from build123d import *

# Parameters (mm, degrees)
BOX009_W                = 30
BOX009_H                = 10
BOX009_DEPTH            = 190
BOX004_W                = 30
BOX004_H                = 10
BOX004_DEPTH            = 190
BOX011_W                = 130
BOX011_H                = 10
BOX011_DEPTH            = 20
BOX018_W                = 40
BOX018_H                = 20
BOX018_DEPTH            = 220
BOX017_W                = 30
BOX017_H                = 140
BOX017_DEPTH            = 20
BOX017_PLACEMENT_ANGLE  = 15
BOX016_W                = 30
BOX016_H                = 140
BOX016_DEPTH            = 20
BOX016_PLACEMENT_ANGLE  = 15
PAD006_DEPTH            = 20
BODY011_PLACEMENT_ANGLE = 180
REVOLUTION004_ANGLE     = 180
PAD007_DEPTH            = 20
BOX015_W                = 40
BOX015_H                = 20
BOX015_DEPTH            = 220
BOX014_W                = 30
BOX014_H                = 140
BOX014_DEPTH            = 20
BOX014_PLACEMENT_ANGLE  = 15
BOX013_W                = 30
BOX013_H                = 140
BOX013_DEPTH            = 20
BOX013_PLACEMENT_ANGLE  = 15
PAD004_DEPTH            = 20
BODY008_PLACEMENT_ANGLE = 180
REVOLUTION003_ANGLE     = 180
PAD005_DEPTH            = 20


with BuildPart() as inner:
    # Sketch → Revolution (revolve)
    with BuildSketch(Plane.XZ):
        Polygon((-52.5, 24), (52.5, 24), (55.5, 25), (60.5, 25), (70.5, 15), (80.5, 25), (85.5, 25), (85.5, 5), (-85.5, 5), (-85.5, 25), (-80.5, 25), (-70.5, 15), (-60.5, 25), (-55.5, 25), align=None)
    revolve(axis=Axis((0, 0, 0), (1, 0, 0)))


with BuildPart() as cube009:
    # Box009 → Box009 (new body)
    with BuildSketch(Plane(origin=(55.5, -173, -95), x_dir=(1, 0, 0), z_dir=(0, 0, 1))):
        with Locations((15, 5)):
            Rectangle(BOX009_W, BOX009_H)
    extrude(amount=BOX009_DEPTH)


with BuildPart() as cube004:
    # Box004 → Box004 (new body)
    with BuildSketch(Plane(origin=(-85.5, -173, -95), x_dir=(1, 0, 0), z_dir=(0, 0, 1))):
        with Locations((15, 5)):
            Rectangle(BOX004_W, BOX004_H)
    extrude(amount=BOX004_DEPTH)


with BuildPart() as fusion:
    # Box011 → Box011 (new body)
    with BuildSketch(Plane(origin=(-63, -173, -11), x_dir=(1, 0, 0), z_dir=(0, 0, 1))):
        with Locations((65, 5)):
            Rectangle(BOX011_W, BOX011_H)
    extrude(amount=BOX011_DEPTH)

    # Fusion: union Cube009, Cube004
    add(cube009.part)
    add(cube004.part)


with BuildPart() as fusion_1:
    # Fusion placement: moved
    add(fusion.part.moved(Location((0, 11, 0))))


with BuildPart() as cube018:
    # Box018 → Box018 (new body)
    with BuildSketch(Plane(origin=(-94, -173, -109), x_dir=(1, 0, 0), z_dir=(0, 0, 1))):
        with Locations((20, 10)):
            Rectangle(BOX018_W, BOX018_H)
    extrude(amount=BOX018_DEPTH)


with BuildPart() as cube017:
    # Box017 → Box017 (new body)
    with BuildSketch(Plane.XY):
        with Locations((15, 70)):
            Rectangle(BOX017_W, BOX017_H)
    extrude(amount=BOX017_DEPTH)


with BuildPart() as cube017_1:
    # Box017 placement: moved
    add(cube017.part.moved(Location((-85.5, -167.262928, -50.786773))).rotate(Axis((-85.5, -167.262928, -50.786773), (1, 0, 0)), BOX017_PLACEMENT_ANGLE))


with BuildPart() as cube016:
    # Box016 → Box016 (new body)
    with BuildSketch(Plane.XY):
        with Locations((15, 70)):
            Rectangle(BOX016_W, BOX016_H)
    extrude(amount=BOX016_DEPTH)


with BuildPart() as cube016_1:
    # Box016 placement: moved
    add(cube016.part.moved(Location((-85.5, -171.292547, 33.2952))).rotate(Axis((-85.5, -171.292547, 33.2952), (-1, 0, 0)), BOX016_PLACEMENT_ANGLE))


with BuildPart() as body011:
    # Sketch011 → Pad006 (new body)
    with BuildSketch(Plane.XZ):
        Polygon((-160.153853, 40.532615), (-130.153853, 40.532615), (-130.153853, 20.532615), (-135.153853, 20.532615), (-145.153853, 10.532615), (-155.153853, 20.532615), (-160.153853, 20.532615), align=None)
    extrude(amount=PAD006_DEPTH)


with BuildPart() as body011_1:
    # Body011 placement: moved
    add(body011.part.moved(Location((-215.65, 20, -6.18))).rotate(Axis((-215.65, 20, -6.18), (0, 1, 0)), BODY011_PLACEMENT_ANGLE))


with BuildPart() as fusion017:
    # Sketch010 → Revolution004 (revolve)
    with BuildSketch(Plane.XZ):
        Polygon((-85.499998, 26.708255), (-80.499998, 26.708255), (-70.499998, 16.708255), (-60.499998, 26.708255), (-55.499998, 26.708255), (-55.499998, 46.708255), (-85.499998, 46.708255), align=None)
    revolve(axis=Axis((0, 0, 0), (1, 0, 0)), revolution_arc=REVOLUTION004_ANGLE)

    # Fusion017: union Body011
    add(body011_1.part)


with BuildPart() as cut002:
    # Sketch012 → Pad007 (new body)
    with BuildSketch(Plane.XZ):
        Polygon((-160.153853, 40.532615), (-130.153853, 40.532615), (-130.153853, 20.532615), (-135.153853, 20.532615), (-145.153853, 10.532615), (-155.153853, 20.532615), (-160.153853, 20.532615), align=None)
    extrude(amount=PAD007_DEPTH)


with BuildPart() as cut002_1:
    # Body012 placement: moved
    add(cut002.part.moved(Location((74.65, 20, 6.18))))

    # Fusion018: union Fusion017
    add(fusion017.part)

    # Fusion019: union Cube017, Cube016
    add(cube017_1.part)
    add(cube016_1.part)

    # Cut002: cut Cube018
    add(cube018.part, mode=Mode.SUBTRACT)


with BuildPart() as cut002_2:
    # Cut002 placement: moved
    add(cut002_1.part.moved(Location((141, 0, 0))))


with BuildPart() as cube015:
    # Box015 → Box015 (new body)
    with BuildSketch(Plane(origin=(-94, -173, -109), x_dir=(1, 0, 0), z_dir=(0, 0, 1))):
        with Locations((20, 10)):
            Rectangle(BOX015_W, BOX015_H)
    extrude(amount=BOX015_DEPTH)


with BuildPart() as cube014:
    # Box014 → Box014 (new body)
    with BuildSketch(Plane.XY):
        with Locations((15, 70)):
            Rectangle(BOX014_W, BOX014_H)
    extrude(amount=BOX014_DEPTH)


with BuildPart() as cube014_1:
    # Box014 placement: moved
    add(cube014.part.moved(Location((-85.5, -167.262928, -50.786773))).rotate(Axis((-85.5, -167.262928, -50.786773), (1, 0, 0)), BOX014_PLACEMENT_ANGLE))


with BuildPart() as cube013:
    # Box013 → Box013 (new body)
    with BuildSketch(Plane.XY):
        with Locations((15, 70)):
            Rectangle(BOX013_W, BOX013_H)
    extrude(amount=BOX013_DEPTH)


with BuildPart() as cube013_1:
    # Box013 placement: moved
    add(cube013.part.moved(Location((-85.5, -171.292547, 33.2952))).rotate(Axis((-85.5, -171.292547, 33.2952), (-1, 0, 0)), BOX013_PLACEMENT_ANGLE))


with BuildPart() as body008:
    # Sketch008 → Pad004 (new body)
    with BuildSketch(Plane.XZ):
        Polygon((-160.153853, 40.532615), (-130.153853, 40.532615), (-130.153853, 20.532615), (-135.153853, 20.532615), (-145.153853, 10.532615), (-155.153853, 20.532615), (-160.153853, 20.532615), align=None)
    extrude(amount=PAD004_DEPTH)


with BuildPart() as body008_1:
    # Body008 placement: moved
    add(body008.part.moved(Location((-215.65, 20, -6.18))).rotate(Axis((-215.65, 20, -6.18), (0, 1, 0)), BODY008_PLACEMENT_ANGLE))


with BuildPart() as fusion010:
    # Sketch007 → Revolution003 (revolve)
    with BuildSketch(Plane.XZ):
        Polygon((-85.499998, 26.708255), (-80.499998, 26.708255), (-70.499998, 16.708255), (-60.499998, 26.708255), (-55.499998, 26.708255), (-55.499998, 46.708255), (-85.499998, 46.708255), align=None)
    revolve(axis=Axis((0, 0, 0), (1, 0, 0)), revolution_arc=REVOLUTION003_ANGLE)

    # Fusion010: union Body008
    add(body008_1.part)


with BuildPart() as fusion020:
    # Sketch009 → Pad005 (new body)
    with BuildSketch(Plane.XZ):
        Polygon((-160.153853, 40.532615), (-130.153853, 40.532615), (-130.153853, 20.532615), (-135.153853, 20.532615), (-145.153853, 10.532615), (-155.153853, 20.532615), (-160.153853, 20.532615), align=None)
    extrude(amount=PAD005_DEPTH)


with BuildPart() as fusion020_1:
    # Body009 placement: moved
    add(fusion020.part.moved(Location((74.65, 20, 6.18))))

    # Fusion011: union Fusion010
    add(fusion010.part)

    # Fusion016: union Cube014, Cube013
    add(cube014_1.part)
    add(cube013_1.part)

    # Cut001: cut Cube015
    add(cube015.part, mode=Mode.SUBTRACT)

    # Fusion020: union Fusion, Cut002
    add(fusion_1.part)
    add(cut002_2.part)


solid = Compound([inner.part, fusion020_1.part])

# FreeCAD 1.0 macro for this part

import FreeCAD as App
import Part
import Sketcher
from FreeCAD import Vector


def add_polygon(sketch, points):
    """Adds a closed chain of lines whose ends are joined by coincident constraints."""
    first, n = sketch.GeometryCount, len(points)
    for a, b in zip(points, points[1:] + points[:1]):
        sketch.addGeometry(Part.LineSegment(App.Vector(*a, 0), App.Vector(*b, 0)), False)
    for i in range(n):
        sketch.addConstraint(Sketcher.Constraint("Coincident", first + i, 2, first + (i + 1) % n, 1))

doc = App.newDocument("Part")
body = doc.addObject("PartDesign::Body", "Body")

sketch1 = body.newObject("Sketcher::SketchObject", "Sketch")
sketch1.AttachmentSupport = (doc.getObject("XZ_Plane"), [""])
sketch1.MapMode = "FlatFace"
add_polygon(sketch1, [(52.5, 24), (-52.5, 24), (-55.5, 25), (-60.5, 25), (-70.5, 15), (-80.5, 25), (-85.5, 25), (-85.5, 5), (85.5, 5), (85.5, 25), (80.5, 25), (70.5, 15), (60.5, 25), (55.5, 25)])
sketch1.addConstraint(Sketcher.Constraint("Horizontal", 0))
sketch1.addConstraint(Sketcher.Constraint("Horizontal", 2))
sketch1.addConstraint(Sketcher.Constraint("Horizontal", 5))
sketch1.addConstraint(Sketcher.Constraint("Vertical", 6))
sketch1.addConstraint(Sketcher.Constraint("Horizontal", 7))
sketch1.addConstraint(Sketcher.Constraint("Vertical", 8))
sketch1.addConstraint(Sketcher.Constraint("Horizontal", 9))
sketch1.addConstraint(Sketcher.Constraint("Horizontal", 12))
sketch1.addConstraint(Sketcher.Constraint("Symmetric", 5, 2, 8, 2, -2))
sketch1.addConstraint(Sketcher.Constraint("Symmetric", 3, 2, 10, 2, -2))
sketch1.addConstraint(Sketcher.Constraint("Symmetric", 2, 2, 11, 2, -2))
sketch1.addConstraint(Sketcher.Constraint("Perpendicular", 3, 4))
sketch1.addConstraint(Sketcher.Constraint("Perpendicular", 4, 10))
sketch1.addConstraint(Sketcher.Constraint("Perpendicular", 10, 11))
sketch1.addConstraint(Sketcher.Constraint("Horizontal", 2, 2, 4, 2))
sketch1.addConstraint(Sketcher.Constraint("Equal", 2, 5))
sketch1.addConstraint(Sketcher.Constraint("Equal", 9, 12))
sketch1.addConstraint(Sketcher.Constraint("Equal", 1, 13))
sketch1.addConstraint(Sketcher.Constraint("DistanceX", 0, 2, 0, 1, 105.0))
sketch1.addConstraint(Sketcher.Constraint("DistanceX", 2, 2, 2, 1, 5.0))
sketch1.addConstraint(Sketcher.Constraint("DistanceX", 7, 1, 7, 2, 171.0))
sketch1.addConstraint(Sketcher.Constraint("DistanceY", 6, 2, 6, 1, 20.0))
sketch1.addConstraint(Sketcher.Constraint("DistanceY", -1, 1, 0, 2, 24.0))
sketch1.addConstraint(Sketcher.Constraint("DistanceY", -1, 1, 1, 2, 25.0))
sketch1.addConstraint(Sketcher.Constraint("DistanceY", -1, 1, 3, 2, 15.0))
revolution = body.newObject("PartDesign::Revolution", "Revolution")
revolution.Profile = sketch1
revolution.ReferenceAxis = (sketch1, ["H_Axis"])
revolution.Angle = 360
body2 = doc.addObject("PartDesign::Body", "Body001")

sketch2 = body2.newObject("Sketcher::SketchObject", "Sketch001")
sketch2.AttachmentSupport = (doc.getObject("XY_Plane001"), [""])
sketch2.MapMode = "FlatFace"
sketch2.AttachmentOffset = App.Placement(Vector(0, 0, -95), App.Rotation())
add_polygon(sketch2, [(56, -163), (56, -173), (86, -173), (86, -163)])
sketch2.addConstraint(Sketcher.Constraint("Vertical", 0))
sketch2.addConstraint(Sketcher.Constraint("Horizontal", 1))
sketch2.addConstraint(Sketcher.Constraint("Vertical", 2))
sketch2.addConstraint(Sketcher.Constraint("Horizontal", 3))
sketch2.addConstraint(Sketcher.Constraint("DistanceX", 1, 1, 1, 2, 30.0))
sketch2.addConstraint(Sketcher.Constraint("DistanceY", 0, 2, 0, 1, 10.0))
sketch2.addConstraint(Sketcher.Constraint("DistanceY", 0, 2, -1, 1, 173.0))
sketch2.addConstraint(Sketcher.Constraint("DistanceX", -1, 1, 0, 2, 55.5))
pad1 = body2.newObject("PartDesign::Pad", "Pad")
pad1.Profile = sketch2
pad1.Length = 190
body3 = doc.addObject("PartDesign::Body", "Body002")

sketch3 = body3.newObject("Sketcher::SketchObject", "Sketch002")
sketch3.AttachmentSupport = (doc.getObject("XY_Plane002"), [""])
sketch3.MapMode = "FlatFace"
sketch3.AttachmentOffset = App.Placement(Vector(0, 0, -95), App.Rotation())
add_polygon(sketch3, [(-86, -163), (-86, -173), (-56, -173), (-56, -163)])
sketch3.addConstraint(Sketcher.Constraint("Vertical", 0))
sketch3.addConstraint(Sketcher.Constraint("Horizontal", 1))
sketch3.addConstraint(Sketcher.Constraint("Vertical", 2))
sketch3.addConstraint(Sketcher.Constraint("Horizontal", 3))
sketch3.addConstraint(Sketcher.Constraint("DistanceX", 1, 1, 1, 2, 30.0))
sketch3.addConstraint(Sketcher.Constraint("DistanceY", 0, 2, 0, 1, 10.0))
sketch3.addConstraint(Sketcher.Constraint("DistanceY", 0, 2, -1, 1, 173.0))
sketch3.addConstraint(Sketcher.Constraint("DistanceX", 0, 2, -1, 1, 85.5))
pad2 = body3.newObject("PartDesign::Pad", "Pad001")
pad2.Profile = sketch3
pad2.Length = 190
body4 = doc.addObject("PartDesign::Body", "Body003")

sketch4 = body4.newObject("Sketcher::SketchObject", "Sketch003")
sketch4.AttachmentSupport = (doc.getObject("XY_Plane003"), [""])
sketch4.MapMode = "FlatFace"
sketch4.AttachmentOffset = App.Placement(Vector(0, 0, -11), App.Rotation())
add_polygon(sketch4, [(-63, -163), (-63, -173), (67, -173), (67, -163)])
sketch4.addConstraint(Sketcher.Constraint("Vertical", 0))
sketch4.addConstraint(Sketcher.Constraint("Horizontal", 1))
sketch4.addConstraint(Sketcher.Constraint("Vertical", 2))
sketch4.addConstraint(Sketcher.Constraint("Horizontal", 3))
sketch4.addConstraint(Sketcher.Constraint("DistanceX", 1, 1, 1, 2, 130.0))
sketch4.addConstraint(Sketcher.Constraint("DistanceY", 0, 2, 0, 1, 10.0))
sketch4.addConstraint(Sketcher.Constraint("DistanceX", 0, 2, -1, 1, 63.0))
sketch4.addConstraint(Sketcher.Constraint("DistanceY", 0, 2, -1, 1, 173.0))
pad3 = body4.newObject("PartDesign::Pad", "Pad002")
pad3.Profile = sketch4
pad3.Length = 20
doc.recompute()

boolean = body4.newObject("PartDesign::Boolean", "Boolean")
boolean.Type = "Fuse"
boolean.addObjects([body2])
doc.recompute()

boolean2 = body4.newObject("PartDesign::Boolean", "Boolean001")
boolean2.Type = "Fuse"
boolean2.addObjects([body3])
body5 = doc.addObject("PartDesign::Body", "Body004")
doc.recompute()

body4.Placement = App.Placement(Vector(0, 11, 0), App.Rotation(Vector(0, 0, 1), 0))
boolean3 = body5.newObject("PartDesign::Boolean", "Boolean002")
boolean3.Type = "Fuse"
boolean3.addObjects([body4])
body6 = doc.addObject("PartDesign::Body", "Body005")

sketch5 = body6.newObject("Sketcher::SketchObject", "Sketch004")
sketch5.AttachmentSupport = (doc.getObject("XY_Plane005"), [""])
sketch5.MapMode = "FlatFace"
sketch5.AttachmentOffset = App.Placement(Vector(0, 0, -109), App.Rotation())
add_polygon(sketch5, [(-94, -153), (-94, -173), (-54, -173), (-54, -153)])
sketch5.addConstraint(Sketcher.Constraint("Vertical", 0))
sketch5.addConstraint(Sketcher.Constraint("Horizontal", 1))
sketch5.addConstraint(Sketcher.Constraint("Vertical", 2))
sketch5.addConstraint(Sketcher.Constraint("Horizontal", 3))
sketch5.addConstraint(Sketcher.Constraint("DistanceX", 1, 1, 1, 2, 40.0))
sketch5.addConstraint(Sketcher.Constraint("DistanceY", 0, 2, 0, 1, 20.0))
sketch5.addConstraint(Sketcher.Constraint("DistanceX", 0, 2, -1, 1, 94.0))
sketch5.addConstraint(Sketcher.Constraint("DistanceY", 0, 2, -1, 1, 173.0))
pad4 = body6.newObject("PartDesign::Pad", "Pad003")
pad4.Profile = sketch5
pad4.Length = 220
body7 = doc.addObject("PartDesign::Body", "Body006")

sketch6 = body7.newObject("Sketcher::SketchObject", "Sketch005")
sketch6.AttachmentSupport = (doc.getObject("XY_Plane006"), [""])
sketch6.MapMode = "FlatFace"
add_polygon(sketch6, [(0, 140), (0, 0), (30, 0), (30, 140)])
sketch6.addConstraint(Sketcher.Constraint("Vertical", 0))
sketch6.addConstraint(Sketcher.Constraint("Horizontal", 1))
sketch6.addConstraint(Sketcher.Constraint("Vertical", 2))
sketch6.addConstraint(Sketcher.Constraint("Horizontal", 3))
sketch6.addConstraint(Sketcher.Constraint("Coincident", 0, 2, -1, 1))
sketch6.addConstraint(Sketcher.Constraint("DistanceX", 1, 1, 1, 2, 30.0))
sketch6.addConstraint(Sketcher.Constraint("DistanceY", 0, 2, 0, 1, 140.0))
pad5 = body7.newObject("PartDesign::Pad", "Pad004")
pad5.Profile = sketch6
pad5.Length = 20
body8 = doc.addObject("PartDesign::Body", "Body007")
doc.recompute()

body7.Placement = App.Placement(Vector(-85.5, -167.262928, -50.786773), App.Rotation(Vector(1, 0, 0), 15))
boolean4 = body8.newObject("PartDesign::Boolean", "Boolean003")
boolean4.Type = "Fuse"
boolean4.addObjects([body7])
body9 = doc.addObject("PartDesign::Body", "Body008")

sketch7 = body9.newObject("Sketcher::SketchObject", "Sketch006")
sketch7.AttachmentSupport = (doc.getObject("XY_Plane008"), [""])
sketch7.MapMode = "FlatFace"
add_polygon(sketch7, [(0, 140), (0, 0), (30, 0), (30, 140)])
sketch7.addConstraint(Sketcher.Constraint("Vertical", 0))
sketch7.addConstraint(Sketcher.Constraint("Horizontal", 1))
sketch7.addConstraint(Sketcher.Constraint("Vertical", 2))
sketch7.addConstraint(Sketcher.Constraint("Horizontal", 3))
sketch7.addConstraint(Sketcher.Constraint("Coincident", 0, 2, -1, 1))
sketch7.addConstraint(Sketcher.Constraint("DistanceX", 1, 1, 1, 2, 30.0))
sketch7.addConstraint(Sketcher.Constraint("DistanceY", 0, 2, 0, 1, 140.0))
pad6 = body9.newObject("PartDesign::Pad", "Pad005")
pad6.Profile = sketch7
pad6.Length = 20
body10 = doc.addObject("PartDesign::Body", "Body009")
doc.recompute()

body9.Placement = App.Placement(Vector(-85.5, -171.292547, 33.2952), App.Rotation(Vector(-1, 0, 0), 15))
boolean5 = body10.newObject("PartDesign::Boolean", "Boolean004")
boolean5.Type = "Fuse"
boolean5.addObjects([body9])
body11 = doc.addObject("PartDesign::Body", "Body010")

sketch8 = body11.newObject("Sketcher::SketchObject", "Sketch007")
sketch8.AttachmentSupport = (doc.getObject("XZ_Plane010"), [""])
sketch8.MapMode = "FlatFace"
add_polygon(sketch8, [(-130, 41), (-160, 41), (-160, 21), (-155, 21), (-145, 11), (-135, 21), (-130, 21)])
sketch8.addConstraint(Sketcher.Constraint("Horizontal", 0))
sketch8.addConstraint(Sketcher.Constraint("Vertical", 1))
sketch8.addConstraint(Sketcher.Constraint("Horizontal", 2))
sketch8.addConstraint(Sketcher.Constraint("Horizontal", 5))
sketch8.addConstraint(Sketcher.Constraint("Vertical", 6))
sketch8.addConstraint(Sketcher.Constraint("Perpendicular", 3, 4))
sketch8.addConstraint(Sketcher.Constraint("Horizontal", 2, 2, 4, 2))
sketch8.addConstraint(Sketcher.Constraint("Equal", 2, 5))
sketch8.addConstraint(Sketcher.Constraint("Equal", 3, 4))
sketch8.addConstraint(Sketcher.Constraint("DistanceX", 0, 2, 0, 1, 30.0))
sketch8.addConstraint(Sketcher.Constraint("DistanceX", 2, 1, 2, 2, 5.0))
sketch8.addConstraint(Sketcher.Constraint("DistanceY", 1, 2, 1, 1, 20.0))
sketch8.addConstraint(Sketcher.Constraint("DistanceX", 0, 2, -1, 1, 160.153853))
sketch8.addConstraint(Sketcher.Constraint("DistanceY", -1, 1, 0, 2, 40.532615))
pad7 = body11.newObject("PartDesign::Pad", "Pad006")
pad7.Profile = sketch8
pad7.Length = 20
body12 = doc.addObject("PartDesign::Body", "Body011")
doc.recompute()

body11.Placement = App.Placement(Vector(-215.65, 20, -6.18), App.Rotation(Vector(0, 1, 0), 180))
boolean6 = body12.newObject("PartDesign::Boolean", "Boolean005")
boolean6.Type = "Fuse"
boolean6.addObjects([body11])
body13 = doc.addObject("PartDesign::Body", "Body012")

sketch9 = body13.newObject("Sketcher::SketchObject", "Sketch008")
sketch9.AttachmentSupport = (doc.getObject("XZ_Plane012"), [""])
sketch9.MapMode = "FlatFace"
add_polygon(sketch9, [(-85, 27), (-80, 27), (-70, 17), (-60, 27), (-55, 27), (-55, 47), (-85, 47)])
sketch9.addConstraint(Sketcher.Constraint("Horizontal", 0))
sketch9.addConstraint(Sketcher.Constraint("Horizontal", 3))
sketch9.addConstraint(Sketcher.Constraint("Vertical", 4))
sketch9.addConstraint(Sketcher.Constraint("Horizontal", 5))
sketch9.addConstraint(Sketcher.Constraint("Vertical", 6))
sketch9.addConstraint(Sketcher.Constraint("Perpendicular", 1, 2))
sketch9.addConstraint(Sketcher.Constraint("Horizontal", 0, 2, 2, 2))
sketch9.addConstraint(Sketcher.Constraint("Equal", 0, 3))
sketch9.addConstraint(Sketcher.Constraint("Equal", 1, 2))
sketch9.addConstraint(Sketcher.Constraint("DistanceX", 0, 1, 0, 2, 5.0))
sketch9.addConstraint(Sketcher.Constraint("DistanceX", 5, 2, 5, 1, 30.0))
sketch9.addConstraint(Sketcher.Constraint("DistanceY", 4, 1, 4, 2, 20.0))
sketch9.addConstraint(Sketcher.Constraint("DistanceX", 0, 2, -1, 1, 80.499998))
sketch9.addConstraint(Sketcher.Constraint("DistanceY", -1, 1, 0, 2, 26.708255))
revolution2 = body13.newObject("PartDesign::Revolution", "Revolution001")
revolution2.Profile = sketch9
revolution2.ReferenceAxis = (sketch9, ["H_Axis"])
revolution2.Angle = 180
doc.recompute()

boolean7 = body13.newObject("PartDesign::Boolean", "Boolean006")
boolean7.Type = "Fuse"
boolean7.addObjects([body12])
body14 = doc.addObject("PartDesign::Body", "Body013")

sketch10 = body14.newObject("Sketcher::SketchObject", "Sketch009")
sketch10.AttachmentSupport = (doc.getObject("XZ_Plane013"), [""])
sketch10.MapMode = "FlatFace"
add_polygon(sketch10, [(-130, 41), (-160, 41), (-160, 21), (-155, 21), (-145, 11), (-135, 21), (-130, 21)])
sketch10.addConstraint(Sketcher.Constraint("Horizontal", 0))
sketch10.addConstraint(Sketcher.Constraint("Vertical", 1))
sketch10.addConstraint(Sketcher.Constraint("Horizontal", 2))
sketch10.addConstraint(Sketcher.Constraint("Horizontal", 5))
sketch10.addConstraint(Sketcher.Constraint("Vertical", 6))
sketch10.addConstraint(Sketcher.Constraint("Perpendicular", 3, 4))
sketch10.addConstraint(Sketcher.Constraint("Horizontal", 2, 2, 4, 2))
sketch10.addConstraint(Sketcher.Constraint("Equal", 2, 5))
sketch10.addConstraint(Sketcher.Constraint("Equal", 3, 4))
sketch10.addConstraint(Sketcher.Constraint("DistanceX", 0, 2, 0, 1, 30.0))
sketch10.addConstraint(Sketcher.Constraint("DistanceX", 2, 1, 2, 2, 5.0))
sketch10.addConstraint(Sketcher.Constraint("DistanceY", 1, 2, 1, 1, 20.0))
sketch10.addConstraint(Sketcher.Constraint("DistanceX", 0, 2, -1, 1, 160.153853))
sketch10.addConstraint(Sketcher.Constraint("DistanceY", -1, 1, 0, 2, 40.532615))
pad8 = body14.newObject("PartDesign::Pad", "Pad007")
pad8.Profile = sketch10
pad8.Length = 20
body15 = doc.addObject("PartDesign::Body", "Body014")
doc.recompute()

body14.Placement = App.Placement(Vector(74.65, 20, 6.18), App.Rotation(Vector(0, 0, 1), 0))
boolean8 = body15.newObject("PartDesign::Boolean", "Boolean007")
boolean8.Type = "Fuse"
boolean8.addObjects([body14])
doc.recompute()

boolean9 = body15.newObject("PartDesign::Boolean", "Boolean008")
boolean9.Type = "Fuse"
boolean9.addObjects([body13])
doc.recompute()

boolean10 = body15.newObject("PartDesign::Boolean", "Boolean009")
boolean10.Type = "Fuse"
boolean10.addObjects([body8])
doc.recompute()

boolean11 = body15.newObject("PartDesign::Boolean", "Boolean010")
boolean11.Type = "Fuse"
boolean11.addObjects([body10])
doc.recompute()

boolean12 = body15.newObject("PartDesign::Boolean", "Boolean011")
boolean12.Type = "Cut"
boolean12.addObjects([body6])
body16 = doc.addObject("PartDesign::Body", "Body015")
doc.recompute()

body15.Placement = App.Placement(Vector(141, 0, 0), App.Rotation(Vector(0, 0, 1), 0))
boolean13 = body16.newObject("PartDesign::Boolean", "Boolean012")
boolean13.Type = "Fuse"
boolean13.addObjects([body15])
body17 = doc.addObject("PartDesign::Body", "Body016")

sketch11 = body17.newObject("Sketcher::SketchObject", "Sketch010")
sketch11.AttachmentSupport = (doc.getObject("XY_Plane016"), [""])
sketch11.MapMode = "FlatFace"
sketch11.AttachmentOffset = App.Placement(Vector(0, 0, -109), App.Rotation())
add_polygon(sketch11, [(-94, -153), (-94, -173), (-54, -173), (-54, -153)])
sketch11.addConstraint(Sketcher.Constraint("Vertical", 0))
sketch11.addConstraint(Sketcher.Constraint("Horizontal", 1))
sketch11.addConstraint(Sketcher.Constraint("Vertical", 2))
sketch11.addConstraint(Sketcher.Constraint("Horizontal", 3))
sketch11.addConstraint(Sketcher.Constraint("DistanceX", 1, 1, 1, 2, 40.0))
sketch11.addConstraint(Sketcher.Constraint("DistanceY", 0, 2, 0, 1, 20.0))
sketch11.addConstraint(Sketcher.Constraint("DistanceX", 0, 2, -1, 1, 94.0))
sketch11.addConstraint(Sketcher.Constraint("DistanceY", 0, 2, -1, 1, 173.0))
pad9 = body17.newObject("PartDesign::Pad", "Pad008")
pad9.Profile = sketch11
pad9.Length = 220
body18 = doc.addObject("PartDesign::Body", "Body017")

sketch12 = body18.newObject("Sketcher::SketchObject", "Sketch011")
sketch12.AttachmentSupport = (doc.getObject("XY_Plane017"), [""])
sketch12.MapMode = "FlatFace"
add_polygon(sketch12, [(0, 140), (0, 0), (30, 0), (30, 140)])
sketch12.addConstraint(Sketcher.Constraint("Vertical", 0))
sketch12.addConstraint(Sketcher.Constraint("Horizontal", 1))
sketch12.addConstraint(Sketcher.Constraint("Vertical", 2))
sketch12.addConstraint(Sketcher.Constraint("Horizontal", 3))
sketch12.addConstraint(Sketcher.Constraint("Coincident", 0, 2, -1, 1))
sketch12.addConstraint(Sketcher.Constraint("DistanceX", 1, 1, 1, 2, 30.0))
sketch12.addConstraint(Sketcher.Constraint("DistanceY", 0, 2, 0, 1, 140.0))
pad10 = body18.newObject("PartDesign::Pad", "Pad009")
pad10.Profile = sketch12
pad10.Length = 20
body19 = doc.addObject("PartDesign::Body", "Body018")
doc.recompute()

body18.Placement = App.Placement(Vector(-85.5, -167.262928, -50.786773), App.Rotation(Vector(1, 0, 0), 15))
boolean14 = body19.newObject("PartDesign::Boolean", "Boolean013")
boolean14.Type = "Fuse"
boolean14.addObjects([body18])
body20 = doc.addObject("PartDesign::Body", "Body019")

sketch13 = body20.newObject("Sketcher::SketchObject", "Sketch012")
sketch13.AttachmentSupport = (doc.getObject("XY_Plane019"), [""])
sketch13.MapMode = "FlatFace"
add_polygon(sketch13, [(0, 140), (0, 0), (30, 0), (30, 140)])
sketch13.addConstraint(Sketcher.Constraint("Vertical", 0))
sketch13.addConstraint(Sketcher.Constraint("Horizontal", 1))
sketch13.addConstraint(Sketcher.Constraint("Vertical", 2))
sketch13.addConstraint(Sketcher.Constraint("Horizontal", 3))
sketch13.addConstraint(Sketcher.Constraint("Coincident", 0, 2, -1, 1))
sketch13.addConstraint(Sketcher.Constraint("DistanceX", 1, 1, 1, 2, 30.0))
sketch13.addConstraint(Sketcher.Constraint("DistanceY", 0, 2, 0, 1, 140.0))
pad11 = body20.newObject("PartDesign::Pad", "Pad010")
pad11.Profile = sketch13
pad11.Length = 20
body21 = doc.addObject("PartDesign::Body", "Body020")
doc.recompute()

body20.Placement = App.Placement(Vector(-85.5, -171.292547, 33.2952), App.Rotation(Vector(-1, 0, 0), 15))
boolean15 = body21.newObject("PartDesign::Boolean", "Boolean014")
boolean15.Type = "Fuse"
boolean15.addObjects([body20])
body22 = doc.addObject("PartDesign::Body", "Body021")

sketch14 = body22.newObject("Sketcher::SketchObject", "Sketch013")
sketch14.AttachmentSupport = (doc.getObject("XZ_Plane021"), [""])
sketch14.MapMode = "FlatFace"
add_polygon(sketch14, [(-130, 41), (-160, 41), (-160, 21), (-155, 21), (-145, 11), (-135, 21), (-130, 21)])
sketch14.addConstraint(Sketcher.Constraint("Horizontal", 0))
sketch14.addConstraint(Sketcher.Constraint("Vertical", 1))
sketch14.addConstraint(Sketcher.Constraint("Horizontal", 2))
sketch14.addConstraint(Sketcher.Constraint("Horizontal", 5))
sketch14.addConstraint(Sketcher.Constraint("Vertical", 6))
sketch14.addConstraint(Sketcher.Constraint("Perpendicular", 3, 4))
sketch14.addConstraint(Sketcher.Constraint("Horizontal", 2, 2, 4, 2))
sketch14.addConstraint(Sketcher.Constraint("Equal", 2, 5))
sketch14.addConstraint(Sketcher.Constraint("Equal", 3, 4))
sketch14.addConstraint(Sketcher.Constraint("DistanceX", 0, 2, 0, 1, 30.0))
sketch14.addConstraint(Sketcher.Constraint("DistanceX", 2, 1, 2, 2, 5.0))
sketch14.addConstraint(Sketcher.Constraint("DistanceY", 1, 2, 1, 1, 20.0))
sketch14.addConstraint(Sketcher.Constraint("DistanceX", 0, 2, -1, 1, 160.153853))
sketch14.addConstraint(Sketcher.Constraint("DistanceY", -1, 1, 0, 2, 40.532615))
pad12 = body22.newObject("PartDesign::Pad", "Pad011")
pad12.Profile = sketch14
pad12.Length = 20
body23 = doc.addObject("PartDesign::Body", "Body022")
doc.recompute()

body22.Placement = App.Placement(Vector(-215.65, 20, -6.18), App.Rotation(Vector(0, 1, 0), 180))
boolean16 = body23.newObject("PartDesign::Boolean", "Boolean015")
boolean16.Type = "Fuse"
boolean16.addObjects([body22])
body24 = doc.addObject("PartDesign::Body", "Body023")

sketch15 = body24.newObject("Sketcher::SketchObject", "Sketch014")
sketch15.AttachmentSupport = (doc.getObject("XZ_Plane023"), [""])
sketch15.MapMode = "FlatFace"
add_polygon(sketch15, [(-85, 27), (-80, 27), (-70, 17), (-60, 27), (-55, 27), (-55, 47), (-85, 47)])
sketch15.addConstraint(Sketcher.Constraint("Horizontal", 0))
sketch15.addConstraint(Sketcher.Constraint("Horizontal", 3))
sketch15.addConstraint(Sketcher.Constraint("Vertical", 4))
sketch15.addConstraint(Sketcher.Constraint("Horizontal", 5))
sketch15.addConstraint(Sketcher.Constraint("Vertical", 6))
sketch15.addConstraint(Sketcher.Constraint("Perpendicular", 1, 2))
sketch15.addConstraint(Sketcher.Constraint("Horizontal", 0, 2, 2, 2))
sketch15.addConstraint(Sketcher.Constraint("Equal", 0, 3))
sketch15.addConstraint(Sketcher.Constraint("Equal", 1, 2))
sketch15.addConstraint(Sketcher.Constraint("DistanceX", 0, 1, 0, 2, 5.0))
sketch15.addConstraint(Sketcher.Constraint("DistanceX", 5, 2, 5, 1, 30.0))
sketch15.addConstraint(Sketcher.Constraint("DistanceY", 4, 1, 4, 2, 20.0))
sketch15.addConstraint(Sketcher.Constraint("DistanceX", 0, 2, -1, 1, 80.499998))
sketch15.addConstraint(Sketcher.Constraint("DistanceY", -1, 1, 0, 2, 26.708255))
revolution3 = body24.newObject("PartDesign::Revolution", "Revolution002")
revolution3.Profile = sketch15
revolution3.ReferenceAxis = (sketch15, ["H_Axis"])
revolution3.Angle = 180
doc.recompute()

boolean17 = body24.newObject("PartDesign::Boolean", "Boolean016")
boolean17.Type = "Fuse"
boolean17.addObjects([body23])
body25 = doc.addObject("PartDesign::Body", "Body024")

sketch16 = body25.newObject("Sketcher::SketchObject", "Sketch015")
sketch16.AttachmentSupport = (doc.getObject("XZ_Plane024"), [""])
sketch16.MapMode = "FlatFace"
add_polygon(sketch16, [(-130, 41), (-160, 41), (-160, 21), (-155, 21), (-145, 11), (-135, 21), (-130, 21)])
sketch16.addConstraint(Sketcher.Constraint("Horizontal", 0))
sketch16.addConstraint(Sketcher.Constraint("Vertical", 1))
sketch16.addConstraint(Sketcher.Constraint("Horizontal", 2))
sketch16.addConstraint(Sketcher.Constraint("Horizontal", 5))
sketch16.addConstraint(Sketcher.Constraint("Vertical", 6))
sketch16.addConstraint(Sketcher.Constraint("Perpendicular", 3, 4))
sketch16.addConstraint(Sketcher.Constraint("Horizontal", 2, 2, 4, 2))
sketch16.addConstraint(Sketcher.Constraint("Equal", 2, 5))
sketch16.addConstraint(Sketcher.Constraint("Equal", 3, 4))
sketch16.addConstraint(Sketcher.Constraint("DistanceX", 0, 2, 0, 1, 30.0))
sketch16.addConstraint(Sketcher.Constraint("DistanceX", 2, 1, 2, 2, 5.0))
sketch16.addConstraint(Sketcher.Constraint("DistanceY", 1, 2, 1, 1, 20.0))
sketch16.addConstraint(Sketcher.Constraint("DistanceX", 0, 2, -1, 1, 160.153853))
sketch16.addConstraint(Sketcher.Constraint("DistanceY", -1, 1, 0, 2, 40.532615))
pad13 = body25.newObject("PartDesign::Pad", "Pad012")
pad13.Profile = sketch16
pad13.Length = 20
body26 = doc.addObject("PartDesign::Body", "Body025")
doc.recompute()

body25.Placement = App.Placement(Vector(74.65, 20, 6.18), App.Rotation(Vector(0, 0, 1), 0))
boolean18 = body26.newObject("PartDesign::Boolean", "Boolean017")
boolean18.Type = "Fuse"
boolean18.addObjects([body25])
doc.recompute()

boolean19 = body26.newObject("PartDesign::Boolean", "Boolean018")
boolean19.Type = "Fuse"
boolean19.addObjects([body24])
doc.recompute()

boolean20 = body26.newObject("PartDesign::Boolean", "Boolean019")
boolean20.Type = "Fuse"
boolean20.addObjects([body19])
doc.recompute()

boolean21 = body26.newObject("PartDesign::Boolean", "Boolean020")
boolean21.Type = "Fuse"
boolean21.addObjects([body21])
doc.recompute()

boolean22 = body26.newObject("PartDesign::Boolean", "Boolean021")
boolean22.Type = "Cut"
boolean22.addObjects([body17])
doc.recompute()

boolean23 = body26.newObject("PartDesign::Boolean", "Boolean022")
boolean23.Type = "Fuse"
boolean23.addObjects([body5])
doc.recompute()

boolean24 = body26.newObject("PartDesign::Boolean", "Boolean023")
boolean24.Type = "Fuse"
boolean24.addObjects([body16])

doc.recompute()
